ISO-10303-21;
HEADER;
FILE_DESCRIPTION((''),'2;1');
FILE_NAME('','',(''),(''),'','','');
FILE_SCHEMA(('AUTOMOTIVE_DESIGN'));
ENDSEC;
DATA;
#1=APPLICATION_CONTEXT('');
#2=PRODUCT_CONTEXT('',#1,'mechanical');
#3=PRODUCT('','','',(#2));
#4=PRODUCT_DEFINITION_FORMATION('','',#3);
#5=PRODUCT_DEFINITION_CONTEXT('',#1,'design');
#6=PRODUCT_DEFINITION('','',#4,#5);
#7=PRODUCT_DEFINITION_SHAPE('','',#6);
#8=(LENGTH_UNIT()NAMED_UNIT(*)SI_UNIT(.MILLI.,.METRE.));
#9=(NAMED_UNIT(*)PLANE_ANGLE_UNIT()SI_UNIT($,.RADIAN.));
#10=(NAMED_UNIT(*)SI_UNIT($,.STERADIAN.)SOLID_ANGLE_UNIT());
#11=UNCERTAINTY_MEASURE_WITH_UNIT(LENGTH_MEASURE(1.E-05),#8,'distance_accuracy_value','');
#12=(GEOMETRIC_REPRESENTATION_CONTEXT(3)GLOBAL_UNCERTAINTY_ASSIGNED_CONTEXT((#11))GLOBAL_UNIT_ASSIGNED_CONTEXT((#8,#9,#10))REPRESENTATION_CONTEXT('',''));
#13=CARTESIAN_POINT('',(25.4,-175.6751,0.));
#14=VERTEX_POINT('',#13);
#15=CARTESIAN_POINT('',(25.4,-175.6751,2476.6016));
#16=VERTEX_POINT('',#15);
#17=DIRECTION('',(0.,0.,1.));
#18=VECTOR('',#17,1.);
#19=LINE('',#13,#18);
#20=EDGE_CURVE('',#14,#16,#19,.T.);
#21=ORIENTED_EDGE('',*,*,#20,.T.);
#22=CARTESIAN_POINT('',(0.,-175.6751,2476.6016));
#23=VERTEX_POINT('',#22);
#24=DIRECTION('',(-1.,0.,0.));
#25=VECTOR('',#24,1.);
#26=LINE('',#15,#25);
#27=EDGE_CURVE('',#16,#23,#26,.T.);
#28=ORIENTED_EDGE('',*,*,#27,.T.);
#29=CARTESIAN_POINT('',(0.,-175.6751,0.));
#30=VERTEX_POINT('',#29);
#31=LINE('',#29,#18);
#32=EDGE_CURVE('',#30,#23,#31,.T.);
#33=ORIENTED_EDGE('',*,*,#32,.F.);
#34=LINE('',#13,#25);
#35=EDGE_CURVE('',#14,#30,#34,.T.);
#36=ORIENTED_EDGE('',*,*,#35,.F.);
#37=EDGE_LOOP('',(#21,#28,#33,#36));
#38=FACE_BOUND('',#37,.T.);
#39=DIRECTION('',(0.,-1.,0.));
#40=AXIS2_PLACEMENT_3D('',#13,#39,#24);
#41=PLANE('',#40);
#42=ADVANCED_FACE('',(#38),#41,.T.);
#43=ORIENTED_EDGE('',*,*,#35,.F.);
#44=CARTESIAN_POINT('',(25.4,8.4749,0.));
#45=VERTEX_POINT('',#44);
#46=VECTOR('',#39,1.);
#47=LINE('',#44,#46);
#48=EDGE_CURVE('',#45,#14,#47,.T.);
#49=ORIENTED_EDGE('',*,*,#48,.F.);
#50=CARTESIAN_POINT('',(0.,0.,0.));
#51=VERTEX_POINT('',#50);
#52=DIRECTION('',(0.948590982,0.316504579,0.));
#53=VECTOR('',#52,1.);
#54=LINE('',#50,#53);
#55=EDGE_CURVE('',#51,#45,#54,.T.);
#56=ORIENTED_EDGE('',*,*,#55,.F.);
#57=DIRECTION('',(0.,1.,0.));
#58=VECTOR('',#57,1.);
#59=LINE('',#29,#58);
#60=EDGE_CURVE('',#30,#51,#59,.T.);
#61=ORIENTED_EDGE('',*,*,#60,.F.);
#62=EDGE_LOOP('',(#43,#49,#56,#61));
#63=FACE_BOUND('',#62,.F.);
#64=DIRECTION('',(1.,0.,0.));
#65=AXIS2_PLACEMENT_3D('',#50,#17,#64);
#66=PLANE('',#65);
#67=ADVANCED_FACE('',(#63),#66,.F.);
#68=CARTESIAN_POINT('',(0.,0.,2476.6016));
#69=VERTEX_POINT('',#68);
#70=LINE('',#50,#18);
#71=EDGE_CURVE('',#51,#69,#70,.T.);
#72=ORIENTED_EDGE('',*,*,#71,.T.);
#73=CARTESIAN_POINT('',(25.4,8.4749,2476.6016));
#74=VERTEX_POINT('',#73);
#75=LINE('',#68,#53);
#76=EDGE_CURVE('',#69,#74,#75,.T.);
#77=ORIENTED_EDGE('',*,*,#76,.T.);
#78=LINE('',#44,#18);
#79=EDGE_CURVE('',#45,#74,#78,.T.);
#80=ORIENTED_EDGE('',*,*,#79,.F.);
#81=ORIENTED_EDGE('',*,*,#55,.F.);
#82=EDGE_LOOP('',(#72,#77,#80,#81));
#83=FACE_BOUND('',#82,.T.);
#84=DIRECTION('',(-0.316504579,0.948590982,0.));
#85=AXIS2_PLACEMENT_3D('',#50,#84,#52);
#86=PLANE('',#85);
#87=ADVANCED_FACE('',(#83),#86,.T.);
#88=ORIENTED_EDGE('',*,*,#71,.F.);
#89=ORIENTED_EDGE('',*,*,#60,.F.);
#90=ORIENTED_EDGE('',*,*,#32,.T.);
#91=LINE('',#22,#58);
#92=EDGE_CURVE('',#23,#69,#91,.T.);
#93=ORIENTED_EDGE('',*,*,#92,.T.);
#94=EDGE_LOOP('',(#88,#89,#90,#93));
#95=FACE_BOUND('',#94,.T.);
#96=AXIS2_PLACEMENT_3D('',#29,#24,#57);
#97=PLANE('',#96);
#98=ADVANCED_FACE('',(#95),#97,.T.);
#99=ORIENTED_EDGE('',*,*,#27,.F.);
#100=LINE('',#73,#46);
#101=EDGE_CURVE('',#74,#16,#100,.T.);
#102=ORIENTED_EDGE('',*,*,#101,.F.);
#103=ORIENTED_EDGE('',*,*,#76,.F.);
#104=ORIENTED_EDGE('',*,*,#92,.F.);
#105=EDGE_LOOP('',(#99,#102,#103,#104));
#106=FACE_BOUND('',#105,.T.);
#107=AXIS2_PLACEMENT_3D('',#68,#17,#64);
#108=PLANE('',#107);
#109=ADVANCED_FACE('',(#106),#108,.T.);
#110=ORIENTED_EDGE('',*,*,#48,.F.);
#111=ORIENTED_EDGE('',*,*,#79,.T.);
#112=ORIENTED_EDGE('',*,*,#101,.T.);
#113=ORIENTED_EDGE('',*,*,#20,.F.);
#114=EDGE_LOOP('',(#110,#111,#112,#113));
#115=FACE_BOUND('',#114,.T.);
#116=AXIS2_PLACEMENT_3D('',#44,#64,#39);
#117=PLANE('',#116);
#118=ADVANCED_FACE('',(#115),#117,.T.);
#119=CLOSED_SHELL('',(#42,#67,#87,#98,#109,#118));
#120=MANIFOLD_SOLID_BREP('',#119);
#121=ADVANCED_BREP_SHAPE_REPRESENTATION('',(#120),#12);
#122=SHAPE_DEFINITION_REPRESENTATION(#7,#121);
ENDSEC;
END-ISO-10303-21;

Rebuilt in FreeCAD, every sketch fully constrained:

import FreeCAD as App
import Part
import Sketcher
from FreeCAD import Vector
Q = App.Units.Quantity

doc = App.newDocument("Part")
body = doc.addObject("PartDesign::Body", "Body")

sketch1 = body.newObject("Sketcher::SketchObject", "Sketch")
sketch1.AttachmentSupport = (doc.getObject("XY_Plane"), [""])
sketch1.MapMode = "FlatFace"
sketch1.addGeometry([
    Part.LineSegment(Vector(25, 8, 0), Vector(0, 0, 0)),
    Part.LineSegment(Vector(0, 0, 0), Vector(0, -176, 0)),
    Part.LineSegment(Vector(0, -176, 0), Vector(25, -176, 0)),
    Part.LineSegment(Vector(25, -176, 0), Vector(25, 8, 0)),
], False)
sketch1.addConstraint([
    Sketcher.Constraint("Coincident", 0, 2, 1, 1),
    Sketcher.Constraint("Coincident", 1, 2, 2, 1),
    Sketcher.Constraint("Coincident", 2, 2, 3, 1),
    Sketcher.Constraint("Coincident", 3, 2, 0, 1),
    Sketcher.Constraint("Vertical", 1),
    Sketcher.Constraint("Horizontal", 2),
    Sketcher.Constraint("Vertical", 3),
    Sketcher.Constraint("Coincident", 0, 2, -1, 1),
    Sketcher.Constraint("DistanceX", 2, 1, 2, 2, Q("1 in")),
    Sketcher.Constraint("DistanceY", 3, 1, 3, 2, Q("7.25 in")),
    Sketcher.Constraint("Distance", 0, Q("1.0542 in")),
])
pad1 = body.newObject("PartDesign::Pad", "Pad")
pad1.Profile = sketch1
pad1.Length = Q("97.504 in")

doc.recompute()
